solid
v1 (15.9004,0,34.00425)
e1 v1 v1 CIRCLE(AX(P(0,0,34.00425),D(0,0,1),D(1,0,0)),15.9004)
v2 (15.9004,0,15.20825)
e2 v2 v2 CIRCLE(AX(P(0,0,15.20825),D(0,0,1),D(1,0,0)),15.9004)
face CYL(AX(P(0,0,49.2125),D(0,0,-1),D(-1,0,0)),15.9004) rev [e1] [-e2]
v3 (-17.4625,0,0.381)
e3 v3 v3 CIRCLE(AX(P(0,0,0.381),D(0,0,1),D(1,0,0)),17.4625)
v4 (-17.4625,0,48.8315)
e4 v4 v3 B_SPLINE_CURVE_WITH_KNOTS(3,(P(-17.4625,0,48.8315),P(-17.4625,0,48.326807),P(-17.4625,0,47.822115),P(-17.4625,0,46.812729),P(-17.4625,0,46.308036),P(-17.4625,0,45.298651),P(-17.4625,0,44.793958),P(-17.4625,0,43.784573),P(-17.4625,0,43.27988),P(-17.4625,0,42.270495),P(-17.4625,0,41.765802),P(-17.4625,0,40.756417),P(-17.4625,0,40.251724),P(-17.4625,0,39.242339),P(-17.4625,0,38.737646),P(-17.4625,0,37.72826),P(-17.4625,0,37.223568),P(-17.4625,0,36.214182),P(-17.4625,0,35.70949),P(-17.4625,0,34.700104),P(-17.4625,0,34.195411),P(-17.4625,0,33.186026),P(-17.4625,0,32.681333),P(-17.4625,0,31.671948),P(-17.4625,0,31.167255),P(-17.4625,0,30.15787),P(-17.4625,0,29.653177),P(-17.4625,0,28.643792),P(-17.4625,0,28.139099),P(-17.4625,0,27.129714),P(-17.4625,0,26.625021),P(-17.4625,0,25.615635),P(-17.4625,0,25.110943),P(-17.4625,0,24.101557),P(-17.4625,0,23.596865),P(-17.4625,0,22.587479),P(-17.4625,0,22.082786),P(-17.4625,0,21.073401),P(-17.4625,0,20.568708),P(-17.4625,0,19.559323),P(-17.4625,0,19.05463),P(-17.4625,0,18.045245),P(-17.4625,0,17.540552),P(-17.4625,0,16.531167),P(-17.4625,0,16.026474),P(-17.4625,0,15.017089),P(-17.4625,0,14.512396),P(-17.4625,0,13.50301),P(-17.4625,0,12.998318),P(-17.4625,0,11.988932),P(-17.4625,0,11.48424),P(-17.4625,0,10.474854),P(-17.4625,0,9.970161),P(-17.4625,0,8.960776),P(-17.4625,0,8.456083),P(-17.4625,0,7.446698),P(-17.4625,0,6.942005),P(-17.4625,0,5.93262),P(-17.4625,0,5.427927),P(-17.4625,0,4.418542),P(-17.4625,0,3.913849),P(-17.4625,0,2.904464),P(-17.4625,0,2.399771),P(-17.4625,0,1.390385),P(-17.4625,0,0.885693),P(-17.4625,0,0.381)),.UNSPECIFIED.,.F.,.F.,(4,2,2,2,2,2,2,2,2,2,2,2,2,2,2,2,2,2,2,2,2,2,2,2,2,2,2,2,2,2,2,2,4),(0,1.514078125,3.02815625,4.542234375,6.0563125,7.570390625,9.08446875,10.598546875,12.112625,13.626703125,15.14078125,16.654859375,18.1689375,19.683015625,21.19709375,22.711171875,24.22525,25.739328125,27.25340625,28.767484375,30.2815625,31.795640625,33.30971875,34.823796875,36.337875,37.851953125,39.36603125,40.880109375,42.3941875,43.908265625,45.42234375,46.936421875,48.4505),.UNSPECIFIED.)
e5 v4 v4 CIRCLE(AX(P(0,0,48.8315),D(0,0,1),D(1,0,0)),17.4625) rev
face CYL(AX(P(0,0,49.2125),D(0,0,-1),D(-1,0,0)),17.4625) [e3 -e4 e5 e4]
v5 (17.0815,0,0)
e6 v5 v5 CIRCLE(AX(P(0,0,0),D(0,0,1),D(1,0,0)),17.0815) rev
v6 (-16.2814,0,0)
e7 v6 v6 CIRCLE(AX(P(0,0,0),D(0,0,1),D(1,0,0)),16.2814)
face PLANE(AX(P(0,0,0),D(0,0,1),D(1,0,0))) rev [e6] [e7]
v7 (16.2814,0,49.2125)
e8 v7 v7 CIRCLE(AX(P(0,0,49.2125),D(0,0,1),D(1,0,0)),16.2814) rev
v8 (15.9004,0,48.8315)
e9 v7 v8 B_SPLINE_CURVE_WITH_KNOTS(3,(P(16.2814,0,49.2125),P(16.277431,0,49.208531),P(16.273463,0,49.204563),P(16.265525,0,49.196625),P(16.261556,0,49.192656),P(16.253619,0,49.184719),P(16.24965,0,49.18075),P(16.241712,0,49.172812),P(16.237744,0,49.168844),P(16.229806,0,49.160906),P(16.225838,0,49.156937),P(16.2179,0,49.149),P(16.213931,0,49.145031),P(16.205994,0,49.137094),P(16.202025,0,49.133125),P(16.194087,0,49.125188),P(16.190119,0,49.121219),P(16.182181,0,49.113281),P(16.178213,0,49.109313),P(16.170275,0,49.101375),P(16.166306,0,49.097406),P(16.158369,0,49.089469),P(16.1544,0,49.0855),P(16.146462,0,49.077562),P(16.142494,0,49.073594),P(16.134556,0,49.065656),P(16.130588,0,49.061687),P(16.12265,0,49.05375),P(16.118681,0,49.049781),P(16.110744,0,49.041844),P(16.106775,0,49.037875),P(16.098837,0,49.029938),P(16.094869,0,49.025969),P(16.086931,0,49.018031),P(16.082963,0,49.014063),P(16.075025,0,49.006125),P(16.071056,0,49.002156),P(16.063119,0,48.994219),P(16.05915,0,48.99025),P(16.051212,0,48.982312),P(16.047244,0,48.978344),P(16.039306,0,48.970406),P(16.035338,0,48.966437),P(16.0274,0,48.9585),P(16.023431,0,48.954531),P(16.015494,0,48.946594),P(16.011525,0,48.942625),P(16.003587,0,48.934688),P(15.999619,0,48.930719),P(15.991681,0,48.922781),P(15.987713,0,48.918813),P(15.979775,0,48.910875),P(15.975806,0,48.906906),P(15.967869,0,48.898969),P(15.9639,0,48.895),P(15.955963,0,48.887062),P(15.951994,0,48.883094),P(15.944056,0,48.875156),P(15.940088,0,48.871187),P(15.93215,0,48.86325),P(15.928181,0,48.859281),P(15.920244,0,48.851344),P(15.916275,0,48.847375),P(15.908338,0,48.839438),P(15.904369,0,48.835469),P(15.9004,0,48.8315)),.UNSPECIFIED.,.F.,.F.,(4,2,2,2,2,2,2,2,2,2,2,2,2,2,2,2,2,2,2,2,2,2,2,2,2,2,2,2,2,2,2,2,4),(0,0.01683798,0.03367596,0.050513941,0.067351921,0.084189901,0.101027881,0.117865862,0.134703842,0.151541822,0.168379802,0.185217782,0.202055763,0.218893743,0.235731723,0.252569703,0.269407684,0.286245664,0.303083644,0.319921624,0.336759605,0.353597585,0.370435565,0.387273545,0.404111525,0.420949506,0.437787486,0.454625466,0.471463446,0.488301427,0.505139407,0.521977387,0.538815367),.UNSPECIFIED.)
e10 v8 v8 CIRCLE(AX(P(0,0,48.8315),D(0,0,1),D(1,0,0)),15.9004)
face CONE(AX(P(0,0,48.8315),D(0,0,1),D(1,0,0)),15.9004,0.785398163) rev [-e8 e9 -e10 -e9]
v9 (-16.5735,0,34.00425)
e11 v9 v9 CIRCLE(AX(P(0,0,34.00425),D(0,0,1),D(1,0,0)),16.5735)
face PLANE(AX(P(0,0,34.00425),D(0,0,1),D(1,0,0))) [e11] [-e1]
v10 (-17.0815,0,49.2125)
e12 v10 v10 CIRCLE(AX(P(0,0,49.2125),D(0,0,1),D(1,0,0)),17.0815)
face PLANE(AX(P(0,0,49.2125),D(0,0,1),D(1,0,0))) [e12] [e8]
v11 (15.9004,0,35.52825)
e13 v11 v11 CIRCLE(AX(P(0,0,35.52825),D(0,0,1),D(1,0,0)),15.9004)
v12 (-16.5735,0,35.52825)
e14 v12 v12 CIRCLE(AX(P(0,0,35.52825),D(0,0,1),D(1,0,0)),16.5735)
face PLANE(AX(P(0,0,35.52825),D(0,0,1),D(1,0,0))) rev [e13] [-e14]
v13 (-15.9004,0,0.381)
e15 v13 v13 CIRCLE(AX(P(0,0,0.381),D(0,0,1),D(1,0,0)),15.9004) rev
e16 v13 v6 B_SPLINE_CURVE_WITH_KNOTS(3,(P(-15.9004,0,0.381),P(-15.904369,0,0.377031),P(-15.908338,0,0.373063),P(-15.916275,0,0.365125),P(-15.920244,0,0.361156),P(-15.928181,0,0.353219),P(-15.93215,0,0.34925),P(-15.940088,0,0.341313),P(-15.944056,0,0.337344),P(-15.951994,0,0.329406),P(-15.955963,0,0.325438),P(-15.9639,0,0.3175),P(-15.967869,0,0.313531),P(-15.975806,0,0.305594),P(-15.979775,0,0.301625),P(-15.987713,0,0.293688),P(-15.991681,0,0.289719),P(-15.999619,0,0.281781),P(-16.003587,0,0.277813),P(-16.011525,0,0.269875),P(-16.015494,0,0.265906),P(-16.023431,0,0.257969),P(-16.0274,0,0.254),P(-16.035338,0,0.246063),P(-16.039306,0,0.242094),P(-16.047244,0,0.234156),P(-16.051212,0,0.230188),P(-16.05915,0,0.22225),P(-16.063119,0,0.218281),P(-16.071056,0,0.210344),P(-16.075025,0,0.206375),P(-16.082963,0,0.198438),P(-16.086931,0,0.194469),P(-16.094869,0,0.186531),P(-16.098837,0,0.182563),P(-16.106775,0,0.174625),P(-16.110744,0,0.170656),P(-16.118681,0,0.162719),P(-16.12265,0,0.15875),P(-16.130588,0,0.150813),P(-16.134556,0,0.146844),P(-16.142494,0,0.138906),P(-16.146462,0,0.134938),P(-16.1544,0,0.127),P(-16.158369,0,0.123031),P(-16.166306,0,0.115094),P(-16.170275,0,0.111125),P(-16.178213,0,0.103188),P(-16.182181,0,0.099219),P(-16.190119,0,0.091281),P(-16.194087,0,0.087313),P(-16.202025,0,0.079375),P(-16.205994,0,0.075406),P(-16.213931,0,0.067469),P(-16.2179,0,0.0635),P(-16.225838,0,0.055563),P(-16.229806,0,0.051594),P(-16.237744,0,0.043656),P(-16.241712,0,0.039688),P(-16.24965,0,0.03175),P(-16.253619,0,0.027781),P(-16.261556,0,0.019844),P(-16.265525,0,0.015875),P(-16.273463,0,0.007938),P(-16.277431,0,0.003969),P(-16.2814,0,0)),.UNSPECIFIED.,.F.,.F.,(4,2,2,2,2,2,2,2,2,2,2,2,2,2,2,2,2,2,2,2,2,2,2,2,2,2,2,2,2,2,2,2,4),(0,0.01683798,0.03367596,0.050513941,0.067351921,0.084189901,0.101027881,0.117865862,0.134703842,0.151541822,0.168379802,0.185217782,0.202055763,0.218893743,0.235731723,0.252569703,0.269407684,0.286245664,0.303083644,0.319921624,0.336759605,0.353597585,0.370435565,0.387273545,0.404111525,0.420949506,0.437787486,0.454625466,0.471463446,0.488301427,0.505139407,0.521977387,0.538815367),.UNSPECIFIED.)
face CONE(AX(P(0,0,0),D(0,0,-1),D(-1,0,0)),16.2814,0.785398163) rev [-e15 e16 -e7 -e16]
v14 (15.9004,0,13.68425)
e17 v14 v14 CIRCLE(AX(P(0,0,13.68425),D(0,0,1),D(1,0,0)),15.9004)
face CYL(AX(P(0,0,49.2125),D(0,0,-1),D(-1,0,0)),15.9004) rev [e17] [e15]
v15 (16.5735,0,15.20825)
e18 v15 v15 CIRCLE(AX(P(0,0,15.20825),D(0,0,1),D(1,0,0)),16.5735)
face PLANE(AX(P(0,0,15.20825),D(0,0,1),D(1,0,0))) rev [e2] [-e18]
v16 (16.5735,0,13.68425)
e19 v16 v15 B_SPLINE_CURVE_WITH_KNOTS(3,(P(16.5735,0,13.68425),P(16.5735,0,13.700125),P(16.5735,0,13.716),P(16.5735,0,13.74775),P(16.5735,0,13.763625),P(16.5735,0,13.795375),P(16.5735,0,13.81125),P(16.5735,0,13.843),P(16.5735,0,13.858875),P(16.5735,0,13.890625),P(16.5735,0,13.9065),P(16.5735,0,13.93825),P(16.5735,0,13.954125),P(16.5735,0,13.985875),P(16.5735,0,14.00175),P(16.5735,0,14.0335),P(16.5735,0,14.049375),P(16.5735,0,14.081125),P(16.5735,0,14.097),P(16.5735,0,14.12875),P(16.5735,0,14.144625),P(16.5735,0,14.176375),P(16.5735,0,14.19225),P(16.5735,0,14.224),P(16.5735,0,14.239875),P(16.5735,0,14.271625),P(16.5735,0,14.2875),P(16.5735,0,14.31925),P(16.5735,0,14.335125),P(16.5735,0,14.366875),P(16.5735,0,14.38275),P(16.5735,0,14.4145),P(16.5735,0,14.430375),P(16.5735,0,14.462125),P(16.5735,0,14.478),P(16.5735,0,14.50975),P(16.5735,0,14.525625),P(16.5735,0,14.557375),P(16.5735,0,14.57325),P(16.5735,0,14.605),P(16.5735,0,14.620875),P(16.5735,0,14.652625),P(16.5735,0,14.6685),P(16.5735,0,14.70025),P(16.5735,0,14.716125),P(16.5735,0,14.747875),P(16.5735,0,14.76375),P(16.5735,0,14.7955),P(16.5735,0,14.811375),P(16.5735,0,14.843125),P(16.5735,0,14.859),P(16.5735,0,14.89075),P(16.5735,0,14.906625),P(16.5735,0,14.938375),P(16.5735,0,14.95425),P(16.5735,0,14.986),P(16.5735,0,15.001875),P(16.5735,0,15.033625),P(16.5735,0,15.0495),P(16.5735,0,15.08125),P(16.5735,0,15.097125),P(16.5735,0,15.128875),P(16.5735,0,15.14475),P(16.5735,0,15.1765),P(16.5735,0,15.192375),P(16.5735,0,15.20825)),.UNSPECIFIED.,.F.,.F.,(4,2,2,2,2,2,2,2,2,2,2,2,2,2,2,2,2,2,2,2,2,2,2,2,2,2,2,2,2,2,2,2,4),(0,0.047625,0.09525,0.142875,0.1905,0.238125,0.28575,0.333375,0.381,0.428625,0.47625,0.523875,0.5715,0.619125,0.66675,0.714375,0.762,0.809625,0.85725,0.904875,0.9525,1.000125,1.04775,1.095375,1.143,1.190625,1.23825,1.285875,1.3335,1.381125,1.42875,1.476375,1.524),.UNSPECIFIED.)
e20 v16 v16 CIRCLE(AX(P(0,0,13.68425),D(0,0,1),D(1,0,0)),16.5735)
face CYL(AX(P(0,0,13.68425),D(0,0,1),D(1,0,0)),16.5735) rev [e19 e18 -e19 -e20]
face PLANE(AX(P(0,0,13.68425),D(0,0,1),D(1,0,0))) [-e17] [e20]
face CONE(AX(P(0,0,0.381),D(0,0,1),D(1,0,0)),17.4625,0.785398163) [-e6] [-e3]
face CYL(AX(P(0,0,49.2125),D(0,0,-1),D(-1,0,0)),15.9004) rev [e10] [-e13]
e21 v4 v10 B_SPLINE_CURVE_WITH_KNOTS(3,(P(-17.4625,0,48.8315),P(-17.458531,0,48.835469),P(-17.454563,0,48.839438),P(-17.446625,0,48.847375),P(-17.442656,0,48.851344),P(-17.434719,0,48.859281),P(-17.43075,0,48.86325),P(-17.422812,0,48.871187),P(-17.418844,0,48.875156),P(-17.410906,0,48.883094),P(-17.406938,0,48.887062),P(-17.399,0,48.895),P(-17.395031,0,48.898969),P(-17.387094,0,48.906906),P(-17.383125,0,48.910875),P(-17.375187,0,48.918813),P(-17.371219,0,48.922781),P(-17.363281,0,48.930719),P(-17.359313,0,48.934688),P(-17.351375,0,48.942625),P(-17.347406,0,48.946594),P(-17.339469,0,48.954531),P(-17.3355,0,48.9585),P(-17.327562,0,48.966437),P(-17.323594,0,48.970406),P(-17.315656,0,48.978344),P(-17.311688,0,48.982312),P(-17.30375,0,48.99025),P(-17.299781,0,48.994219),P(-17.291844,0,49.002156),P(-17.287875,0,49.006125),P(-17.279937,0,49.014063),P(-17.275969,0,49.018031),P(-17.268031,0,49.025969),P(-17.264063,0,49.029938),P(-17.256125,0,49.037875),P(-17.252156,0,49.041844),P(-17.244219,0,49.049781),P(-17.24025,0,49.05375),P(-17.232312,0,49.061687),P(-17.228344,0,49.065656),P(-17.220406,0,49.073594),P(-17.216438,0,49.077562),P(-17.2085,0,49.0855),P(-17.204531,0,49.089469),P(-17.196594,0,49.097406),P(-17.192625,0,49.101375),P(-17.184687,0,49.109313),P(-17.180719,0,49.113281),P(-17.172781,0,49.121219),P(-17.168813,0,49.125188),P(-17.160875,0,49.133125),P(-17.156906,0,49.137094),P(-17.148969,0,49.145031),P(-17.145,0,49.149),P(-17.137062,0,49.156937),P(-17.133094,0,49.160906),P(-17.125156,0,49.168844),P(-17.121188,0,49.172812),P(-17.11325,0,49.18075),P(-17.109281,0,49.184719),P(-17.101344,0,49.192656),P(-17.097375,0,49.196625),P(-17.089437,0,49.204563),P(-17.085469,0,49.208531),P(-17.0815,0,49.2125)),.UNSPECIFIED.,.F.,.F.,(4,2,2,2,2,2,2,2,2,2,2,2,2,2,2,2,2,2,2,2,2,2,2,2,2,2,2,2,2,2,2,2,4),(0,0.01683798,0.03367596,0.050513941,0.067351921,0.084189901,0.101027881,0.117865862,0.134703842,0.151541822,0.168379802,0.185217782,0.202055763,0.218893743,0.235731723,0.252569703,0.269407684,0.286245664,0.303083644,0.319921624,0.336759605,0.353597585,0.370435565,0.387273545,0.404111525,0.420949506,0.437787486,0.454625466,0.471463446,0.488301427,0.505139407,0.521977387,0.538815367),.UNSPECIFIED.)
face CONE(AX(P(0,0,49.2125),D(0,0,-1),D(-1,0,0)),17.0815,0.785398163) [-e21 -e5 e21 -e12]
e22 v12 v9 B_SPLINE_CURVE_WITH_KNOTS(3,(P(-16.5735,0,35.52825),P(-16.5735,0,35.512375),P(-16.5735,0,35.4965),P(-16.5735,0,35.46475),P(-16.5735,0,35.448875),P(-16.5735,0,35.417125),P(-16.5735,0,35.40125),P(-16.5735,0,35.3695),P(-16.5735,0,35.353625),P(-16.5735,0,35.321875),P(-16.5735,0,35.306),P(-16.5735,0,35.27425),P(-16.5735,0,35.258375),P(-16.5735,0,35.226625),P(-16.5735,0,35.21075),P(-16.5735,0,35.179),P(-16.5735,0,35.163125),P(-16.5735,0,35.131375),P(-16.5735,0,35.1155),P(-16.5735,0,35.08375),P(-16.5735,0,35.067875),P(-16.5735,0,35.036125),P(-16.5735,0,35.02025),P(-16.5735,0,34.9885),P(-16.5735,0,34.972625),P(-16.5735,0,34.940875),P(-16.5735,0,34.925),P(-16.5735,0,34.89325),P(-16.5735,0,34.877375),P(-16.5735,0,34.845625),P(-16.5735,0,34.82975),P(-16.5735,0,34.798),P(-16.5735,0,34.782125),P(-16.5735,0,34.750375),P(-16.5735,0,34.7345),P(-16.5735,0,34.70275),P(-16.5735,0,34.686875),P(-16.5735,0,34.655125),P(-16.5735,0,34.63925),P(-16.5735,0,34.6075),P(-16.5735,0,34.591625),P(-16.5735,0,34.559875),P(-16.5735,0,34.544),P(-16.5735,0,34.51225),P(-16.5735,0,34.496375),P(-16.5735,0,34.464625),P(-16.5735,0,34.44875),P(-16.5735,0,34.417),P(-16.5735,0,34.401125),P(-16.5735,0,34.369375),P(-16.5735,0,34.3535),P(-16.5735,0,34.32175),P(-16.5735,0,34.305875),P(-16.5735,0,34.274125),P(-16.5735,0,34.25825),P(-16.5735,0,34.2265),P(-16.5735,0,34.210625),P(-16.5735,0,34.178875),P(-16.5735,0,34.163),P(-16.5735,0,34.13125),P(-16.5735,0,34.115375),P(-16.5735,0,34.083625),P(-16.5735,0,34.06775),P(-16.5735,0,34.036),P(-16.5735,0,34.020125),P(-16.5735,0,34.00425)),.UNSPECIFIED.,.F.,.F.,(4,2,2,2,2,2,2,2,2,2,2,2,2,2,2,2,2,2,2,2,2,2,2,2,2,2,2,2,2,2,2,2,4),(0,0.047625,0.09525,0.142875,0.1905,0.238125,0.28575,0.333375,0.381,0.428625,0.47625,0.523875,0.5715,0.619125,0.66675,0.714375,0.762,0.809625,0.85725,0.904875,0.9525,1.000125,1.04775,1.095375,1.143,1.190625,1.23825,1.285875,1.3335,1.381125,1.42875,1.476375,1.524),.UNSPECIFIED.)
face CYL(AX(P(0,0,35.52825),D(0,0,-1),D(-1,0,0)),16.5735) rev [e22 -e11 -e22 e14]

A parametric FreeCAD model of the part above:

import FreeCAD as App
import Part
import Sketcher

V = App.Vector
Q = App.Units.Quantity


def edges_at(feature, points):
    """Names of the edges that pass closest to the given points."""
    edges = feature.Shape.Edges
    near = lambda p: min(range(len(edges)), key=lambda i: edges[i].distToShape(Part.Vertex(*p))[0])
    return sorted({f"Edge{near(p) + 1}" for p in points})

doc = App.newDocument("Part")
body = doc.addObject("PartDesign::Body", "Body")

sketch1 = body.newObject("Sketcher::SketchObject", "Sketch")
sketch1.AttachmentSupport = (doc.getObject("XY_Plane"), [""])
sketch1.MapMode = "FlatFace"
sketch1.addGeometry(Part.Circle(V(0, 0, 0), V(0, 0, 1), 17), False)
sketch1.addGeometry(Part.Circle(V(0, 0, 0), V(0, 0, 1), 16), False)
sketch1.addConstraint(Sketcher.Constraint("Coincident", 0, 3, -1, 1))
sketch1.addConstraint(Sketcher.Constraint("Coincident", 1, 3, -1, 1))
sketch1.addConstraint(Sketcher.Constraint("Diameter", 0, Q("1.375 in")))
sketch1.addConstraint(Sketcher.Constraint("Diameter", 1, Q("1.252 in")))
pad1 = body.newObject("PartDesign::Pad", "Pad")
pad1.Profile = sketch1
pad1.Length = Q("1.9375 in")

sketch2 = body.newObject("Sketcher::SketchObject", "Sketch001")
sketch2.AttachmentSupport = (doc.getObject("XY_Plane"), [""])
sketch2.MapMode = "FlatFace"
sketch2.AttachmentOffset = App.Placement(V(0, 0, 15.20825), App.Rotation())
sketch2.addGeometry(Part.Circle(V(0, 0, 0), V(0, 0, 1), 17), False)
sketch2.addConstraint(Sketcher.Constraint("Coincident", 0, 3, -1, 1))
sketch2.addConstraint(Sketcher.Constraint("Diameter", 0, Q("1.305 in")))
pocket1 = body.newObject("PartDesign::Pocket", "Pocket")
pocket1.Profile = sketch2
pocket1.Length = Q("0.06 in")

sketch3 = body.newObject("Sketcher::SketchObject", "Sketch002")
sketch3.AttachmentSupport = (doc.getObject("XY_Plane"), [""])
sketch3.MapMode = "FlatFace"
sketch3.AttachmentOffset = App.Placement(V(0, 0, 35.52825), App.Rotation())
sketch3.addGeometry(Part.Circle(V(0, 0, 0), V(0, 0, 1), 17), False)
sketch3.addConstraint(Sketcher.Constraint("Coincident", 0, 3, -1, 1))
sketch3.addConstraint(Sketcher.Constraint("Diameter", 0, Q("1.305 in")))
pocket2 = body.newObject("PartDesign::Pocket", "Pocket001")
pocket2.Profile = sketch3
pocket2.Length = Q("0.06 in")
doc.recompute()

chamfer = body.newObject("PartDesign::Chamfer", "Chamfer")
chamfer.Base = (pocket2, edges_at(pocket2, [
    (-17.462, 0, 0),
    (-17.462, 0, 49.212),
    (-15.9, 0, 0),
    (-15.9, 0, 49.212),
]))
chamfer.Size = Q("0.015 in")

doc.recompute()
